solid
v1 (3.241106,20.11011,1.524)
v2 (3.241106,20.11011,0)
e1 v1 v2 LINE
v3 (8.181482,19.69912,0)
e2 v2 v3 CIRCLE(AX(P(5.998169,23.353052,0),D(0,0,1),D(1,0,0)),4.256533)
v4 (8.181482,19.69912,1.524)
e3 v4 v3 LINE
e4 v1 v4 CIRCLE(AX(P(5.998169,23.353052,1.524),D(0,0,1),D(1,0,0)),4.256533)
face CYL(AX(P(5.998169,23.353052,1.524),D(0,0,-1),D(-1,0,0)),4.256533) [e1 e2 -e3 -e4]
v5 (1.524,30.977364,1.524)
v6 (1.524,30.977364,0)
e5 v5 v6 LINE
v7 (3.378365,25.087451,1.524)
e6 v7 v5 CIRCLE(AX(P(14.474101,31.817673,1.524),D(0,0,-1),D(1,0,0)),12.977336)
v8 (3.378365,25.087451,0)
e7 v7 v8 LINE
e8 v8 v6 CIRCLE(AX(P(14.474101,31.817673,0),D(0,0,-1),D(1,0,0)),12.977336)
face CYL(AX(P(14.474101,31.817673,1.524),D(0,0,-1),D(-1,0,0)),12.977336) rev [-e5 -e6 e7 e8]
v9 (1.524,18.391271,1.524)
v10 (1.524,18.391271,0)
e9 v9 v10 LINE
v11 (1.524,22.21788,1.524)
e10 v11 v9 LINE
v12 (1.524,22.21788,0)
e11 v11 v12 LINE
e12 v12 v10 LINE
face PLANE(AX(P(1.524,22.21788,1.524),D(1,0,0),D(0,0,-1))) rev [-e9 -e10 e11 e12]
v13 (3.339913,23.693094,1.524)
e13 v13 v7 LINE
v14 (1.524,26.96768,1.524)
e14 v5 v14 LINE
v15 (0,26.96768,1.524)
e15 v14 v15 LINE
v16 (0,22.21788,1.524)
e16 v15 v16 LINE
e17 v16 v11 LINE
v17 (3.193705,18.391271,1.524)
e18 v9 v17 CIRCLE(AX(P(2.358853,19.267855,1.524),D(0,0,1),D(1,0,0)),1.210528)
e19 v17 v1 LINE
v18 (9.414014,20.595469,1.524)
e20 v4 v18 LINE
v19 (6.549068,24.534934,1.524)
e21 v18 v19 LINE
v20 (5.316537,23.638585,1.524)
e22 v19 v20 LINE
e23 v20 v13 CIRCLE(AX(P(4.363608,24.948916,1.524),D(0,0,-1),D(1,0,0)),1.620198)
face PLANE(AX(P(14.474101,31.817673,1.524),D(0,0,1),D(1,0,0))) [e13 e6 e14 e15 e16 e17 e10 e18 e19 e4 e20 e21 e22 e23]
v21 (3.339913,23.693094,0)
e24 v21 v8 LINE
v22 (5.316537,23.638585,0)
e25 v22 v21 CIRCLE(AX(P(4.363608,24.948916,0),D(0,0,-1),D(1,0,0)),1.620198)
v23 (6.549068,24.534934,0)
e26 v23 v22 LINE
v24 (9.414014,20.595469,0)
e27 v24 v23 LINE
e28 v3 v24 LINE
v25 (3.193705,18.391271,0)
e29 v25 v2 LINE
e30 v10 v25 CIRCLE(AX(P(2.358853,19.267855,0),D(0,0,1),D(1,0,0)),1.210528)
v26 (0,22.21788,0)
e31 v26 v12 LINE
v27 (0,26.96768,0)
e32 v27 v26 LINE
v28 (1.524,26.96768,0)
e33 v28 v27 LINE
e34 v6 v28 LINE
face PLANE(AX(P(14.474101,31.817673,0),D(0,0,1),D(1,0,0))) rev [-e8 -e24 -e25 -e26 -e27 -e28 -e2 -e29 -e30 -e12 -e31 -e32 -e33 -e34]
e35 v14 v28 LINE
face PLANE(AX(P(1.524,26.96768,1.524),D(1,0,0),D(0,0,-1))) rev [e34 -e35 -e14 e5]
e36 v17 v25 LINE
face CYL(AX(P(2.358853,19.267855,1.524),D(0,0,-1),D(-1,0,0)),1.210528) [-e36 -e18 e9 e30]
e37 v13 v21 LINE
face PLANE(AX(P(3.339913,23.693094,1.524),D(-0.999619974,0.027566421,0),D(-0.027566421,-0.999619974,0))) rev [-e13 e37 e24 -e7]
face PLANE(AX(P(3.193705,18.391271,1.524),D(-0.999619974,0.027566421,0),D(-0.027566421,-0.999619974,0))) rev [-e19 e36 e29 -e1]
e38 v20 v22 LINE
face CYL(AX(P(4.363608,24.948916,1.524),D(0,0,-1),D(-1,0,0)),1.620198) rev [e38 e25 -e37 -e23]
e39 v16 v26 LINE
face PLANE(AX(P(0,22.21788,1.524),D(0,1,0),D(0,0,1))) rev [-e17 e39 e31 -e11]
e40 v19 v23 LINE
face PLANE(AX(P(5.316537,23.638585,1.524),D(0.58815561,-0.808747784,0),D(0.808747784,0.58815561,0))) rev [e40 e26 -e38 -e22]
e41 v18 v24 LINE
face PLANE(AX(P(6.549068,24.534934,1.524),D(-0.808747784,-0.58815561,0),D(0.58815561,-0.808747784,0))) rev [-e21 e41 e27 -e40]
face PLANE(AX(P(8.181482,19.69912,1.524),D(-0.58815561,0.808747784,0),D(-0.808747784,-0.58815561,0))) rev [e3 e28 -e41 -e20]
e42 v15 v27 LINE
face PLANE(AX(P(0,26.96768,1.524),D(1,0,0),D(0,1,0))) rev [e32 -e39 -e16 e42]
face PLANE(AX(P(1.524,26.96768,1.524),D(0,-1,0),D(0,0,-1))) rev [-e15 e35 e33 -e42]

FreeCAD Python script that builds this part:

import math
import FreeCAD as App
import Part
import Sketcher
from FreeCAD import Vector
Q = App.Units.Quantity

doc = App.newDocument("Part")
body = doc.addObject("PartDesign::Body", "Body")

# Sketch on XY plane
sketch1 = body.newObject("Sketcher::SketchObject", "Sketch")
sketch1.AttachmentSupport = (doc.getObject("XY_Plane"), [""])
sketch1.MapMode = "FlatFace"
sketch1.addGeometry([
    Part.LineSegment(Vector(1.5, 27, 0), Vector(0, 27, 0)),  # 0
    Part.LineSegment(Vector(0, 27, 0), Vector(0, 22.2, 0)),  # 1
    Part.LineSegment(Vector(0, 22.2, 0), Vector(1.5, 22.2, 0)),  # 2
    Part.LineSegment(Vector(1.5, 22.2, 0), Vector(1.5, 18.4, 0)),  # 3
    Part.ArcOfCircle(Part.Circle(Vector(2.4, 19.3, 0), Vector(0, 0, 1), 1.2), math.radians(-134), math.radians(-46)),  # 4
    Part.LineSegment(Vector(3.2, 18.4, 0), Vector(3.2, 20.1, 0)),  # 5
    Part.ArcOfCircle(Part.Circle(Vector(6, 23.4, 0), Vector(0, 0, 1), 4.3), math.radians(-130), math.radians(-59)),  # 6
    Part.LineSegment(Vector(8.2, 19.7, 0), Vector(9.4, 20.6, 0)),  # 7
    Part.LineSegment(Vector(9.4, 20.6, 0), Vector(6.5, 24.5, 0)),  # 8
    Part.LineSegment(Vector(6.5, 24.5, 0), Vector(5.3, 23.6, 0)),  # 9
    Part.ArcOfCircle(Part.Circle(Vector(4.4, 24.9, 0), Vector(0, 0, 1), 1.6), math.radians(-129), math.radians(-54)),  # 10
    Part.LineSegment(Vector(3.3, 23.7, 0), Vector(3.4, 25.1, 0)),  # 11
    Part.ArcOfCircle(Part.Circle(Vector(14.5, 31.8, 0), Vector(0, 0, 1), 13), math.radians(-176), math.radians(-149)),  # 12
    Part.LineSegment(Vector(1.5, 31, 0), Vector(1.5, 27, 0)),  # 13
], False)
sketch1.addConstraint([
    Sketcher.Constraint("Coincident", 0, 2, 1, 1),
    Sketcher.Constraint("Coincident", 1, 2, 2, 1),
    Sketcher.Constraint("Coincident", 2, 2, 3, 1),
    Sketcher.Constraint("Coincident", 3, 2, 4, 1),
    Sketcher.Constraint("Coincident", 4, 2, 5, 1),
    Sketcher.Constraint("Coincident", 5, 2, 6, 1),
    Sketcher.Constraint("Coincident", 6, 2, 7, 1),
    Sketcher.Constraint("Coincident", 7, 2, 8, 1),
    Sketcher.Constraint("Coincident", 8, 2, 9, 1),
    Sketcher.Constraint("Tangent", 9, 2, 10, 2),
    Sketcher.Constraint("Coincident", 10, 1, 11, 1),
    Sketcher.Constraint("Coincident", 11, 2, 12, 2),
    Sketcher.Constraint("Coincident", 12, 1, 13, 1),
    Sketcher.Constraint("Coincident", 13, 2, 0, 1),
    Sketcher.Constraint("Horizontal", 0),
    Sketcher.Constraint("Vertical", 1),
    Sketcher.Constraint("Horizontal", 2),
    Sketcher.Constraint("Vertical", 3),
    Sketcher.Constraint("Vertical", 13),
    Sketcher.Constraint("PointOnObject", 0, 2, -2),
    Sketcher.Constraint("Perpendicular", 7, 8),
    Sketcher.Constraint("Perpendicular", 8, 9),
    Sketcher.Constraint("Parallel", 5, 11),
    Sketcher.Constraint("Horizontal", 3, 2, 4, 2),
    Sketcher.Constraint("Vertical", 3, 2, 12, 1),
    Sketcher.Constraint("Equal", 7, 9),
    Sketcher.Constraint("DistanceX", 0, 2, 0, 1, Q("0.06 in")),
    Sketcher.Constraint("Distance", 7, Q("0.06 in")),
    Sketcher.Constraint("DistanceY", 1, 2, 1, 1, Q("0.187 in")),
    Sketcher.Constraint("Radius", 4, 1.210528),
    Sketcher.Constraint("Radius", 6, 4.256533),
    Sketcher.Constraint("Radius", 10, 1.620198),
    Sketcher.Constraint("Radius", 12, 12.977336),
    Sketcher.Constraint("DistanceY", 3, 2, 3, 1, 3.826609),
    Sketcher.Constraint("DistanceX", -1, 1, 12, 3, 14.474101),
    Sketcher.Constraint("DistanceX", 4, 2, 5, 2, 0.0474),
    Sketcher.Constraint("DistanceY", 4, 2, 7, 2, 2.204198),
    Sketcher.Constraint("DistanceX", 6, 3, 8, 2, 0.550899),
    Sketcher.Constraint("DistanceY", 6, 3, 11, 2, 1.734399),
    Sketcher.Constraint("DistanceY", 13, 2, 13, 1, 4.009683),
    Sketcher.Constraint("DistanceX", -1, 1, 6, 3, 5.998169),
    Sketcher.Constraint("DistanceY", -1, 1, 6, 3, 23.353052),
    Sketcher.Constraint("DistanceX", -1, 1, 10, 3, 4.363608),
    Sketcher.Constraint("DistanceY", -1, 1, 0, 2, 26.96768),
    Sketcher.Constraint("DistanceY", -1, 1, 5, 2, 20.11011),
])
pad1 = body.newObject("PartDesign::Pad", "Pad")
pad1.Profile = sketch1
pad1.Length = Q("0.06 in")

doc.recompute()
